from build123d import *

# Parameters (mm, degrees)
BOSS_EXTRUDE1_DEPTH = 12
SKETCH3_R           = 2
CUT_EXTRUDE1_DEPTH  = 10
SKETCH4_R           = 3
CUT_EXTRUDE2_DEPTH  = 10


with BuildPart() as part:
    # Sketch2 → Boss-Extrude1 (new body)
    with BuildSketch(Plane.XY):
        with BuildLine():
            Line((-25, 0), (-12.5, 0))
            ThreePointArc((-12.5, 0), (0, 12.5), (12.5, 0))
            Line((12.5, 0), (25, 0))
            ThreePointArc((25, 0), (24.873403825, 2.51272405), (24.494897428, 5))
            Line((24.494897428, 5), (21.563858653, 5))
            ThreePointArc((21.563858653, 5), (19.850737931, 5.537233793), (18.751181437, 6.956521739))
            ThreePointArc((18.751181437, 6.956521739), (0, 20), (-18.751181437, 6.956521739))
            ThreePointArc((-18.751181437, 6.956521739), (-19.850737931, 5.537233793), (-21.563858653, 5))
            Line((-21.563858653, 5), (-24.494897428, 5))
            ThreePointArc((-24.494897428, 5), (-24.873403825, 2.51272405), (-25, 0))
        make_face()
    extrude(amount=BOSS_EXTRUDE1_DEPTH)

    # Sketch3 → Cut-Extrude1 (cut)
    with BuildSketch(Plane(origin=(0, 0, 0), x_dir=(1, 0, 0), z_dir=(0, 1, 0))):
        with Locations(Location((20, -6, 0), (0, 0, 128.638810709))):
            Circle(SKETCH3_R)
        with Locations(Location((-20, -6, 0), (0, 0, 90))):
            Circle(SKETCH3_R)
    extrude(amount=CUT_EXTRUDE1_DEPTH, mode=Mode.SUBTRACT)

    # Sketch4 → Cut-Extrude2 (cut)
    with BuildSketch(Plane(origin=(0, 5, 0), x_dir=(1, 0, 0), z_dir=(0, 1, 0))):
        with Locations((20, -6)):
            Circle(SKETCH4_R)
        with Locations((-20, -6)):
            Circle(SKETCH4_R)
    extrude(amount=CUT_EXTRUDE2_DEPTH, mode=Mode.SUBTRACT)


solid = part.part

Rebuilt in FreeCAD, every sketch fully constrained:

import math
import FreeCAD as App
import Part
import Sketcher
Q = App.Units.Quantity

doc = App.newDocument("Part")
params = doc.addObject("Spreadsheet::Sheet", "Params")
for row, (alias, value) in enumerate([
    ("sketch1_radius", "25 mm"),
    ("sketch1_radius2", "3 mm"),
    ("sketch1_radius3", "20 mm"),
    ("sketch1_radius4", "12.5 mm"),
    ("pad1_length", "12 mm"),
    ("sketch2_diameter", "4 mm"),
    ("pocket1_length", "10 mm"),
    ("sketch3_diameter", "6 mm"),
    ("pocket2_length", "10 mm"),
], start=1):
    params.set(f"A{row}", alias)
    params.set(f"B{row}", "=" + value)
    params.setAlias(f"B{row}", alias)

body = doc.addObject("PartDesign::Body", "Body")

# Sketch on XY plane
sketch1 = body.newObject("Sketcher::SketchObject", "Sketch")
sketch1.AttachmentSupport = (doc.getObject("XY_Plane"), [""])
sketch1.MapMode = "FlatFace"
sketch1.addGeometry(Part.LineSegment(App.Vector(-25, 0, 0), App.Vector(-12.5, 0, 0)), False)
sketch1.addGeometry(Part.ArcOfCircle(Part.Circle(App.Vector(0, 0, 0), App.Vector(0, 0, 1), 12.5), math.radians(0), math.radians(180)), False)
sketch1.addGeometry(Part.LineSegment(App.Vector(12.5, 0, 0), App.Vector(25, 0, 0)), False)
sketch1.addGeometry(Part.ArcOfCircle(Part.Circle(App.Vector(0, 0, 0), App.Vector(0, 0, 1), 25), math.radians(0), math.radians(11.54)), False)
sketch1.addGeometry(Part.LineSegment(App.Vector(24.5, 5, 0), App.Vector(21.6, 5, 0)), False)
sketch1.addGeometry(Part.ArcOfCircle(Part.Circle(App.Vector(21.6, 8, 0), App.Vector(0, 0, 1), 3), math.radians(-160), math.radians(-90)), False)
sketch1.addGeometry(Part.ArcOfCircle(Part.Circle(App.Vector(0, 0, 0), App.Vector(0, 0, 1), 20), math.radians(20), math.radians(160)), False)
sketch1.addGeometry(Part.ArcOfCircle(Part.Circle(App.Vector(-21.6, 8, 0), App.Vector(0, 0, 1), 3), math.radians(-90), math.radians(-20)), False)
sketch1.addGeometry(Part.LineSegment(App.Vector(-21.6, 5, 0), App.Vector(-24.5, 5, 0)), False)
sketch1.addGeometry(Part.ArcOfCircle(Part.Circle(App.Vector(0, 0, 0), App.Vector(0, 0, 1), 25), math.radians(168.46), math.radians(180)), False)
sketch1.addConstraint(Sketcher.Constraint("Coincident", 0, 2, 1, 2))
sketch1.addConstraint(Sketcher.Constraint("Coincident", 1, 1, 2, 1))
sketch1.addConstraint(Sketcher.Constraint("Coincident", 2, 2, 3, 1))
sketch1.addConstraint(Sketcher.Constraint("Coincident", 3, 2, 4, 1))
sketch1.addConstraint(Sketcher.Constraint("Tangent", 4, 2, 5, 2))
sketch1.addConstraint(Sketcher.Constraint("Tangent", 5, 1, 6, 1))
sketch1.addConstraint(Sketcher.Constraint("Tangent", 6, 2, 7, 2))
sketch1.addConstraint(Sketcher.Constraint("Tangent", 7, 1, 8, 1))
sketch1.addConstraint(Sketcher.Constraint("Coincident", 8, 2, 9, 1))
sketch1.addConstraint(Sketcher.Constraint("Coincident", 9, 2, 0, 1))
sketch1.addConstraint(Sketcher.Constraint("Horizontal", 0))
sketch1.addConstraint(Sketcher.Constraint("Horizontal", 2))
sketch1.addConstraint(Sketcher.Constraint("Horizontal", 4))
sketch1.addConstraint(Sketcher.Constraint("Horizontal", 8))
sketch1.addConstraint(Sketcher.Constraint("Coincident", 1, 3, -1, 1))
sketch1.addConstraint(Sketcher.Constraint("Coincident", 3, 3, -1, 1))
sketch1.addConstraint(Sketcher.Constraint("Coincident", 6, 3, -1, 1))
sketch1.addConstraint(Sketcher.Constraint("Coincident", 9, 3, -1, 1))
sketch1.addConstraint(Sketcher.Constraint("Equal", 5, 7))
sketch1.addConstraint(Sketcher.Constraint("Equal", 3, 9))
sketch1.addConstraint(Sketcher.Constraint("PointOnObject", 0, 2, -1))
sketch1.addConstraint(Sketcher.Constraint("PointOnObject", 1, 1, -1))
sketch1.addConstraint(Sketcher.Constraint("Horizontal", 5, 3, 7, 3))
sketch1.addConstraint(Sketcher.Constraint("Radius", 3, Q("25 mm")))
sketch1.addConstraint(Sketcher.Constraint("Radius", 5, Q("3 mm")))
sketch1.addConstraint(Sketcher.Constraint("Radius", 6, Q("20 mm")))
sketch1.addConstraint(Sketcher.Constraint("Radius", 1, Q("12.5 mm")))
sketch1.addConstraint(Sketcher.Constraint("DistanceY", -1, 1, 5, 3, Q("8 mm")))
sketch1.setExpression("Constraints[23]", "Params.sketch1_radius")
sketch1.setExpression("Constraints[24]", "Params.sketch1_radius2")
sketch1.setExpression("Constraints[25]", "Params.sketch1_radius3")
sketch1.setExpression("Constraints[26]", "Params.sketch1_radius4")
pad1 = body.newObject("PartDesign::Pad", "Pad")
pad1.Profile = sketch1
pad1.setExpression("Length", "Params.pad1_length")

# Sketch on XZ plane
sketch2 = body.newObject("Sketcher::SketchObject", "Sketch001")
sketch2.AttachmentSupport = (doc.getObject("XZ_Plane"), [""])
sketch2.MapMode = "FlatFace"
sketch2.addGeometry(Part.Circle(App.Vector(20, 6, 0), App.Vector(0, 0, 1), 2), False)
sketch2.addGeometry(Part.Circle(App.Vector(-20, 6, 0), App.Vector(0, 0, 1), 2), False)
sketch2.addConstraint(Sketcher.Constraint("Equal", 0, 1))
sketch2.addConstraint(Sketcher.Constraint("Symmetric", 0, 3, 1, 3, -2))
sketch2.addConstraint(Sketcher.Constraint("Diameter", 0, Q("4 mm")))
sketch2.addConstraint(Sketcher.Constraint("DistanceX", -1, 1, 0, 3, Q("20 mm")))
sketch2.addConstraint(Sketcher.Constraint("DistanceY", -1, 1, 0, 3, Q("6 mm")))
sketch2.setExpression("Constraints[2]", "Params.sketch2_diameter")
pocket1 = body.newObject("PartDesign::Pocket", "Pocket")
pocket1.Profile = sketch2
pocket1.setExpression("Length", "Params.pocket1_length")

# Sketch on XZ plane
sketch3 = body.newObject("Sketcher::SketchObject", "Sketch002")
sketch3.AttachmentSupport = (doc.getObject("XZ_Plane"), [""])
sketch3.MapMode = "FlatFace"
sketch3.AttachmentOffset = App.Placement(App.Vector(0, 0, -5), App.Rotation())
sketch3.addGeometry(Part.Circle(App.Vector(20, 6, 0), App.Vector(0, 0, 1), 3), False)
sketch3.addGeometry(Part.Circle(App.Vector(-20, 6, 0), App.Vector(0, 0, 1), 3), False)
sketch3.addConstraint(Sketcher.Constraint("Equal", 0, 1))
sketch3.addConstraint(Sketcher.Constraint("Symmetric", 0, 3, 1, 3, -2))
sketch3.addConstraint(Sketcher.Constraint("Diameter", 0, Q("6 mm")))
sketch3.addConstraint(Sketcher.Constraint("DistanceX", -1, 1, 0, 3, Q("20 mm")))
sketch3.addConstraint(Sketcher.Constraint("DistanceY", -1, 1, 0, 3, Q("6 mm")))
sketch3.setExpression("Constraints[2]", "Params.sketch3_diameter")
pocket2 = body.newObject("PartDesign::Pocket", "Pocket001")
pocket2.Profile = sketch3
pocket2.setExpression("Length", "Params.pocket2_length")

doc.recompute()
